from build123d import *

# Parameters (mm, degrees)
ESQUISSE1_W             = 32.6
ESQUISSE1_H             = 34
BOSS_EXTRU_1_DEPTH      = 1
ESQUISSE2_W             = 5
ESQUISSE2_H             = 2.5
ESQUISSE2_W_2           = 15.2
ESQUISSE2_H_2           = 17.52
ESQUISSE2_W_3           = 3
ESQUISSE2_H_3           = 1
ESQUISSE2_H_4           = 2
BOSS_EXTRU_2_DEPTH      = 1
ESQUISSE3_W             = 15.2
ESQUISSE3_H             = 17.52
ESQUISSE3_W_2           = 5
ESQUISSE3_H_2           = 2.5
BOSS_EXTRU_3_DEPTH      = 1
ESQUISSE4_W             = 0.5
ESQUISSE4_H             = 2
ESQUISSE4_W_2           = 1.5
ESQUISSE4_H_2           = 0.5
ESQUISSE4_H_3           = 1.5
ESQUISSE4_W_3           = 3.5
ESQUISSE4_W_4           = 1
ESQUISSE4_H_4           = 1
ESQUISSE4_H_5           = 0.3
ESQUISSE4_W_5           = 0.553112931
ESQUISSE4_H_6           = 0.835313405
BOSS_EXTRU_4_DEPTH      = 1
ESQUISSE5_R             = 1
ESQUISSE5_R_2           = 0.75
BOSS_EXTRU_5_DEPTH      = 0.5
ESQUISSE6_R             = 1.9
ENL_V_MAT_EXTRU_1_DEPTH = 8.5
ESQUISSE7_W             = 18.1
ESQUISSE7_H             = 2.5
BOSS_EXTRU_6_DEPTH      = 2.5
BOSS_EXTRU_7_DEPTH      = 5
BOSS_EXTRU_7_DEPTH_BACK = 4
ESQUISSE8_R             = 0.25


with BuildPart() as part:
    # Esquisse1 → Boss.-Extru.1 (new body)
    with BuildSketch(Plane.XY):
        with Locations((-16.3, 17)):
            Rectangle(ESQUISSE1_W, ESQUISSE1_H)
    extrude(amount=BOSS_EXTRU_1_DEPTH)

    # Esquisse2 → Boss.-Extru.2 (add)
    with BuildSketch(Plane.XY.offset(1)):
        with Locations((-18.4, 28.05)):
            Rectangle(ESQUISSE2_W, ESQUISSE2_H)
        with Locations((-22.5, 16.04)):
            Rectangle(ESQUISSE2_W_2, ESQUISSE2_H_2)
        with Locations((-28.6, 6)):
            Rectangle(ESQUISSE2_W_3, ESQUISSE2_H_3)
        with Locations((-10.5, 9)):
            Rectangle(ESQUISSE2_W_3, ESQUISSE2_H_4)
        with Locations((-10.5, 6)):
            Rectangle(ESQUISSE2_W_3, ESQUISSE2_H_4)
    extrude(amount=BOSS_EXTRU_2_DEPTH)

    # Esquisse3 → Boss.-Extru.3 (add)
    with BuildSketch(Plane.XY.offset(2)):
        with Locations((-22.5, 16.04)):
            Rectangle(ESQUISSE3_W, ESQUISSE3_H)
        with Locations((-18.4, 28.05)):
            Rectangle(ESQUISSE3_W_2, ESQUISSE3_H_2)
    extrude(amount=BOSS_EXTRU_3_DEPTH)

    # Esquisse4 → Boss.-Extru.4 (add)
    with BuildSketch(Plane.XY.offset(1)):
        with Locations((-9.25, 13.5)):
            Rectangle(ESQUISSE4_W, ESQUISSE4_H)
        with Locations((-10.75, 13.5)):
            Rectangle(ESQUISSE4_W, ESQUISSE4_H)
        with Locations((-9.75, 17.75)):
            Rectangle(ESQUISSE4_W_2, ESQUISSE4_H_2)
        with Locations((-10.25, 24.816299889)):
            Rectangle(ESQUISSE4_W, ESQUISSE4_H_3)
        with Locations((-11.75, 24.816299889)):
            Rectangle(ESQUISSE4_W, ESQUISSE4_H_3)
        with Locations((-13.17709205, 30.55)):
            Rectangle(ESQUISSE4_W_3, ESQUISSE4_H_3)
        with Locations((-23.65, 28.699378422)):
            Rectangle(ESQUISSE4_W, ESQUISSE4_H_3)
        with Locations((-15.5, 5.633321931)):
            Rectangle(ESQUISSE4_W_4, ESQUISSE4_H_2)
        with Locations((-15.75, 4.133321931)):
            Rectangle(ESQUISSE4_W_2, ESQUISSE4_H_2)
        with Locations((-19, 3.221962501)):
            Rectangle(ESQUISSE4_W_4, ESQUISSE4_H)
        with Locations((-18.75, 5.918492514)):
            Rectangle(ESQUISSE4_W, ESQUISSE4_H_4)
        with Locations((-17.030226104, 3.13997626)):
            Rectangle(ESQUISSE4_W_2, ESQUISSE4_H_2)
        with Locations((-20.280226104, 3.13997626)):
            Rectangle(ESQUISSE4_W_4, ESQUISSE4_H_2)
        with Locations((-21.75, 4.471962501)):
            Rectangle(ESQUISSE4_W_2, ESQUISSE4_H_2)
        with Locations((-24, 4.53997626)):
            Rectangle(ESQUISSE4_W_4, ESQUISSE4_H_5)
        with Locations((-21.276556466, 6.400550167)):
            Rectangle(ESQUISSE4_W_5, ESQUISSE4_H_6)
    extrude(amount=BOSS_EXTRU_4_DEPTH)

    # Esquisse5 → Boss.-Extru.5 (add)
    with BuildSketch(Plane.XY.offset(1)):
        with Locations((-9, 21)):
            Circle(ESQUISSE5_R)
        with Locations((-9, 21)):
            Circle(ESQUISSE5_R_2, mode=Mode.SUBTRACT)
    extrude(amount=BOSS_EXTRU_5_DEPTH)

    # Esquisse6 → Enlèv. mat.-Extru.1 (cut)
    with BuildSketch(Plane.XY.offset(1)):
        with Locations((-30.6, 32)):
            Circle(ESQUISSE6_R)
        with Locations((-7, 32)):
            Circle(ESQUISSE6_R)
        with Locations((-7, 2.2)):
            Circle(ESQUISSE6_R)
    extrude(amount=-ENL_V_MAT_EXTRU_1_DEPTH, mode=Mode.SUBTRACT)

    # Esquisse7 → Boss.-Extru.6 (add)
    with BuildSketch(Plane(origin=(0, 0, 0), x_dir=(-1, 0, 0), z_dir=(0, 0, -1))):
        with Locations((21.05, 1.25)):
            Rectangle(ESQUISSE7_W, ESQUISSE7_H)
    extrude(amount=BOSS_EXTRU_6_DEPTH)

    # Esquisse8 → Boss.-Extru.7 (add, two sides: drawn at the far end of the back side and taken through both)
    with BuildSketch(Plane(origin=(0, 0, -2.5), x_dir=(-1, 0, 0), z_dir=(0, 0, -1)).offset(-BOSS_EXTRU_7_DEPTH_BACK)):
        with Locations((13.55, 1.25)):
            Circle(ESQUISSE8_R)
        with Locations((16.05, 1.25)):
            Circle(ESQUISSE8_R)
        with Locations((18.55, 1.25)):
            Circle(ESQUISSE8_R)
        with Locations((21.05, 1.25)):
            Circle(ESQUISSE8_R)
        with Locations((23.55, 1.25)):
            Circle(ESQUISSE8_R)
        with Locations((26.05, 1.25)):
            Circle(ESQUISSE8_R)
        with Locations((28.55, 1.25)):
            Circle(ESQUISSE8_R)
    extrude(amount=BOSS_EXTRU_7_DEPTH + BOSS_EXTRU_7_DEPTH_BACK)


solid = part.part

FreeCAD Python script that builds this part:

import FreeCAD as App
import Part
import Sketcher
from FreeCAD import Vector


def add_polygon(sketch, points):
    """Adds a closed chain of lines whose ends are joined by coincident constraints."""
    first, n = sketch.GeometryCount, len(points)
    for a, b in zip(points, points[1:] + points[:1]):
        sketch.addGeometry(Part.LineSegment(App.Vector(*a, 0), App.Vector(*b, 0)), False)
    for i in range(n):
        sketch.addConstraint(Sketcher.Constraint("Coincident", first + i, 2, first + (i + 1) % n, 1))

doc = App.newDocument("Part")
params = doc.addObject("Spreadsheet::Sheet", "Params")
for row, (alias, value) in enumerate([
    ("sketch1_height", "34 mm"),
    ("sketch1_width", "32.6 mm"),
    ("pad1_length", "1 mm"),
    ("sketch2_width", "5 mm"),
    ("sketch2_width2", "3 mm"),
    ("sketch2_height", "1 mm"),
    ("sketch2_height2", "2 mm"),
    ("sketch2_width3", "15.2 mm"),
    ("pad2_length", "1 mm"),
    ("sketch3_width", "5 mm"),
    ("sketch3_width2", "15.2 mm"),
    ("sketch3_height", "2.5 mm"),
    ("sketch3_height2", "17.52 mm"),
    ("pad3_length", "1 mm"),
    ("sketch4_width", "1 mm"),
    ("sketch4_height", "2 mm"),
    ("sketch4_width2", "0.5 mm"),
    ("sketch4_width3", "1.5 mm"),
    ("sketch4_width4", "3.5 mm"),
    ("pad4_length", "1 mm"),
    ("sketch5_diameter", "2 mm"),
    ("sketch5_diameter2", "1.5 mm"),
    ("pad5_length", "0.5 mm"),
    ("sketch6_diameter", "3.8 mm"),
    ("pocket1_length", "8.5 mm"),
    ("sketch7_width", "18.1 mm"),
    ("sketch7_height", "2.5 mm"),
    ("pad6_length", "2.5 mm"),
    ("sketch8_diameter", "0.5 mm"),
    ("pad7_length", "5 mm"),
    ("pad7_length2", "4 mm"),
], start=1):
    params.set(f"A{row}", alias)
    params.set(f"B{row}", "=" + value)
    params.setAlias(f"B{row}", alias)

body = doc.addObject("PartDesign::Body", "Body")

# Sketch on XY plane
sketch1 = body.newObject("Sketcher::SketchObject", "Sketch")
sketch1.AttachmentSupport = (doc.getObject("XY_Plane"), [""])
sketch1.MapMode = "FlatFace"
add_polygon(sketch1, [(-33, 34), (-33, 0), (0, 0), (0, 34)])  # lines 0-3
sketch1.addConstraint([
    Sketcher.Constraint("Vertical", 0),
    Sketcher.Constraint("Horizontal", 1),
    Sketcher.Constraint("Vertical", 2),
    Sketcher.Constraint("Horizontal", 3),
    Sketcher.Constraint("Coincident", 1, 2, -1, 1),
    Sketcher.Constraint("DistanceY", 0, 2, 0, 1, 34.0),
    Sketcher.Constraint("DistanceX", 1, 1, 1, 2, 32.6),
])
sketch1.setExpression("Constraints[9]", "Params.sketch1_height")
sketch1.setExpression("Constraints[10]", "Params.sketch1_width")
pad1 = body.newObject("PartDesign::Pad", "Pad")
pad1.Profile = sketch1
pad1.setExpression("Length", "Params.pad1_length")

# Sketch on XY plane
sketch2 = body.newObject("Sketcher::SketchObject", "Sketch001")
sketch2.AttachmentSupport = (doc.getObject("XY_Plane"), [""])
sketch2.MapMode = "FlatFace"
sketch2.AttachmentOffset = App.Placement(Vector(0, 0, 1), App.Rotation())
add_polygon(sketch2, [(-20.9, 29.3), (-20.9, 26.8), (-15.9, 26.8), (-15.9, 29.3)])  # lines 0-3
add_polygon(sketch2, [(-30.1, 24.8), (-30.1, 7.3), (-14.9, 7.3), (-14.9, 24.8)])  # lines 4-7
add_polygon(sketch2, [(-30.1, 6.5), (-30.1, 5.5), (-27.1, 5.5), (-27.1, 6.5)])  # lines 8-11
add_polygon(sketch2, [(-12, 10), (-12, 8), (-9, 8), (-9, 10)])  # lines 12-15
add_polygon(sketch2, [(-12, 7), (-12, 5), (-9, 5), (-9, 7)])  # lines 16-19
sketch2.addConstraint([
    Sketcher.Constraint("Vertical", 0),
    Sketcher.Constraint("Horizontal", 1),
    Sketcher.Constraint("Vertical", 2),
    Sketcher.Constraint("Horizontal", 3),
    Sketcher.Constraint("Vertical", 4),
    Sketcher.Constraint("Horizontal", 5),
    Sketcher.Constraint("Vertical", 6),
    Sketcher.Constraint("Horizontal", 7),
    Sketcher.Constraint("Vertical", 8),
    Sketcher.Constraint("Horizontal", 9),
    Sketcher.Constraint("Vertical", 10),
    Sketcher.Constraint("Horizontal", 11),
    Sketcher.Constraint("Vertical", 12),
    Sketcher.Constraint("Horizontal", 13),
    Sketcher.Constraint("Vertical", 14),
    Sketcher.Constraint("Horizontal", 15),
    Sketcher.Constraint("Vertical", 16),
    Sketcher.Constraint("Horizontal", 17),
    Sketcher.Constraint("Vertical", 18),
    Sketcher.Constraint("Horizontal", 19),
    Sketcher.Constraint("Vertical", 7, 2, 8, 2),
    Sketcher.Constraint("Vertical", 15, 2, 16, 2),
    Sketcher.Constraint("Vertical", 14, 2, 17, 2),
    Sketcher.Constraint("Equal", 11, 13),
    Sketcher.Constraint("Equal", 14, 16),
    Sketcher.Constraint("DistanceX", 1, 1, 1, 2, 5.0),
    Sketcher.Constraint("DistanceX", 9, 1, 9, 2, 3.0),
    Sketcher.Constraint("DistanceY", 8, 2, 8, 1, 1.0),
    Sketcher.Constraint("DistanceY", 12, 2, 12, 1, 2.0),
    Sketcher.Constraint("DistanceX", 5, 1, 5, 2, 15.2),
    Sketcher.Constraint("DistanceY", 0, 2, 0, 1, 2.5),
    Sketcher.Constraint("DistanceX", 12, 2, -1, 1, 12.0),
    Sketcher.Constraint("DistanceY", -1, 1, 12, 2, 8.0),
    Sketcher.Constraint("DistanceY", -1, 1, 16, 2, 5.0),
    Sketcher.Constraint("DistanceX", 1, 2, 5, 2, 1.0),
    Sketcher.Constraint("DistanceY", 6, 2, 1, 2, 2.0),
    Sketcher.Constraint("DistanceY", 4, 2, 4, 1, 17.52),
    Sketcher.Constraint("DistanceX", 0, 2, -1, 1, 20.9),
    Sketcher.Constraint("DistanceY", -1, 1, 0, 2, 26.8),
    Sketcher.Constraint("DistanceY", -1, 1, 8, 2, 5.5),
])
sketch2.setExpression("Constraints[45]", "Params.sketch2_width")
sketch2.setExpression("Constraints[46]", "Params.sketch2_width2")
sketch2.setExpression("Constraints[47]", "Params.sketch2_height")
sketch2.setExpression("Constraints[48]", "Params.sketch2_height2")
sketch2.setExpression("Constraints[49]", "Params.sketch2_width3")
pad2 = body.newObject("PartDesign::Pad", "Pad001")
pad2.Profile = sketch2
pad2.setExpression("Length", "Params.pad2_length")

# Sketch on XY plane
sketch3 = body.newObject("Sketcher::SketchObject", "Sketch002")
sketch3.AttachmentSupport = (doc.getObject("XY_Plane"), [""])
sketch3.MapMode = "FlatFace"
sketch3.AttachmentOffset = App.Placement(Vector(0, 0, 2), App.Rotation())
add_polygon(sketch3, [(-30.1, 24.8), (-30.1, 7.3), (-14.9, 7.3), (-14.9, 24.8)])  # lines 0-3
add_polygon(sketch3, [(-20.9, 29.3), (-20.9, 26.8), (-15.9, 26.8), (-15.9, 29.3)])  # lines 4-7
sketch3.addConstraint([
    Sketcher.Constraint("Vertical", 0),
    Sketcher.Constraint("Horizontal", 1),
    Sketcher.Constraint("Vertical", 2),
    Sketcher.Constraint("Horizontal", 3),
    Sketcher.Constraint("Vertical", 4),
    Sketcher.Constraint("Horizontal", 5),
    Sketcher.Constraint("Vertical", 6),
    Sketcher.Constraint("Horizontal", 7),
    Sketcher.Constraint("DistanceX", 5, 1, 5, 2, 5.0),
    Sketcher.Constraint("DistanceX", 1, 1, 1, 2, 15.2),
    Sketcher.Constraint("DistanceY", 4, 2, 4, 1, 2.5),
    Sketcher.Constraint("DistanceX", 4, 2, 2, 2, 6.0),
    Sketcher.Constraint("DistanceY", 2, 2, 4, 2, 2.0),
    Sketcher.Constraint("DistanceY", 0, 2, 0, 1, 17.52),
    Sketcher.Constraint("DistanceX", 0, 2, -1, 1, 30.1),
    Sketcher.Constraint("DistanceY", -1, 1, 2, 2, 24.8),
])
sketch3.setExpression("Constraints[16]", "Params.sketch3_width")
sketch3.setExpression("Constraints[17]", "Params.sketch3_width2")
sketch3.setExpression("Constraints[18]", "Params.sketch3_height")
sketch3.setExpression("Constraints[21]", "Params.sketch3_height2")
pad3 = body.newObject("PartDesign::Pad", "Pad002")
pad3.Profile = sketch3
pad3.setExpression("Length", "Params.pad3_length")

# Sketch on XY plane
sketch4 = body.newObject("Sketcher::SketchObject", "Sketch003")
sketch4.AttachmentSupport = (doc.getObject("XY_Plane"), [""])
sketch4.MapMode = "FlatFace"
sketch4.AttachmentOffset = App.Placement(Vector(0, 0, 1), App.Rotation())
add_polygon(sketch4, [(-9.5, 14.5), (-9.5, 12.5), (-9, 12.5), (-9, 14.5)])  # lines 0-3
add_polygon(sketch4, [(-11, 14.5), (-11, 12.5), (-10.5, 12.5), (-10.5, 14.5)])  # lines 4-7
add_polygon(sketch4, [(-10.5, 18), (-10.5, 17.5), (-9, 17.5), (-9, 18)])  # lines 8-11
add_polygon(sketch4, [(-10.5, 25.57), (-10.5, 24.07), (-10, 24.07), (-10, 25.57)])  # lines 12-15
add_polygon(sketch4, [(-12, 25.57), (-12, 24.07), (-11.5, 24.07), (-11.5, 25.57)])  # lines 16-19
add_polygon(sketch4, [(-14.93, 31.3), (-14.93, 29.8), (-11.43, 29.8), (-11.43, 31.3)])  # lines 20-23
add_polygon(sketch4, [(-23.9, 29.45), (-23.9, 27.95), (-23.4, 27.95), (-23.4, 29.45)])  # lines 24-27
add_polygon(sketch4, [(-16, 5.88), (-16, 5.38), (-15, 5.38), (-15, 5.88)])  # lines 28-31
add_polygon(sketch4, [(-16.5, 4.38), (-16.5, 3.88), (-15, 3.88), (-15, 4.38)])  # lines 32-35
add_polygon(sketch4, [(-19.5, 4.22), (-19.5, 2.22), (-18.5, 2.22), (-18.5, 4.22)])  # lines 36-39
add_polygon(sketch4, [(-19, 6.42), (-19, 5.42), (-18.5, 5.42), (-18.5, 6.42)])  # lines 40-43
add_polygon(sketch4, [(-17.78, 3.39), (-17.78, 2.89), (-16.28, 2.89), (-16.28, 3.39)])  # lines 44-47
add_polygon(sketch4, [(-20.78, 3.39), (-20.78, 2.89), (-19.78, 2.89), (-19.78, 3.39)])  # lines 48-51
add_polygon(sketch4, [(-22.5, 4.72), (-22.5, 4.22), (-21, 4.22), (-21, 4.72)])  # lines 52-55
add_polygon(sketch4, [(-24.5, 4.69), (-24.5, 4.39), (-23.5, 4.39), (-23.5, 4.69)])  # lines 56-59
add_polygon(sketch4, [(-21.55, 6.82), (-21.55, 5.98), (-21, 5.98), (-21, 6.82)])  # lines 60-63
sketch4.addConstraint([
    Sketcher.Constraint("Vertical", 0),
    Sketcher.Constraint("Horizontal", 1),
    Sketcher.Constraint("Vertical", 2),
    Sketcher.Constraint("Horizontal", 3),
    Sketcher.Constraint("Vertical", 4),
    Sketcher.Constraint("Horizontal", 5),
    Sketcher.Constraint("Vertical", 6),
    Sketcher.Constraint("Horizontal", 7),
    Sketcher.Constraint("Vertical", 8),
    Sketcher.Constraint("Horizontal", 9),
    Sketcher.Constraint("Vertical", 10),
    Sketcher.Constraint("Horizontal", 11),
    Sketcher.Constraint("Vertical", 12),
    Sketcher.Constraint("Horizontal", 13),
    Sketcher.Constraint("Vertical", 14),
    Sketcher.Constraint("Horizontal", 15),
    Sketcher.Constraint("Vertical", 16),
    Sketcher.Constraint("Horizontal", 17),
    Sketcher.Constraint("Vertical", 18),
    Sketcher.Constraint("Horizontal", 19),
    Sketcher.Constraint("Vertical", 20),
    Sketcher.Constraint("Horizontal", 21),
    Sketcher.Constraint("Vertical", 22),
    Sketcher.Constraint("Horizontal", 23),
    Sketcher.Constraint("Vertical", 24),
    Sketcher.Constraint("Horizontal", 25),
    Sketcher.Constraint("Vertical", 26),
    Sketcher.Constraint("Horizontal", 27),
    Sketcher.Constraint("Vertical", 28),
    Sketcher.Constraint("Horizontal", 29),
    Sketcher.Constraint("Vertical", 30),
    Sketcher.Constraint("Horizontal", 31),
    Sketcher.Constraint("Vertical", 32),
    Sketcher.Constraint("Horizontal", 33),
    Sketcher.Constraint("Vertical", 34),
    Sketcher.Constraint("Horizontal", 35),
    Sketcher.Constraint("Vertical", 36),
    Sketcher.Constraint("Horizontal", 37),
    Sketcher.Constraint("Vertical", 38),
    Sketcher.Constraint("Horizontal", 39),
    Sketcher.Constraint("Vertical", 40),
    Sketcher.Constraint("Horizontal", 41),
    Sketcher.Constraint("Vertical", 42),
    Sketcher.Constraint("Horizontal", 43),
    Sketcher.Constraint("Vertical", 44),
    Sketcher.Constraint("Horizontal", 45),
    Sketcher.Constraint("Vertical", 46),
    Sketcher.Constraint("Horizontal", 47),
    Sketcher.Constraint("Vertical", 48),
    Sketcher.Constraint("Horizontal", 49),
    Sketcher.Constraint("Vertical", 50),
    Sketcher.Constraint("Horizontal", 51),
    Sketcher.Constraint("Vertical", 52),
    Sketcher.Constraint("Horizontal", 53),
    Sketcher.Constraint("Vertical", 54),
    Sketcher.Constraint("Horizontal", 55),
    Sketcher.Constraint("Vertical", 56),
    Sketcher.Constraint("Horizontal", 57),
    Sketcher.Constraint("Vertical", 58),
    Sketcher.Constraint("Horizontal", 59),
    Sketcher.Constraint("Vertical", 60),
    Sketcher.Constraint("Horizontal", 61),
    Sketcher.Constraint("Vertical", 62),
    Sketcher.Constraint("Horizontal", 63),
    Sketcher.Constraint("Horizontal", 1, 2, 4, 2),
    Sketcher.Constraint("Horizontal", 3, 2, 6, 2),
    Sketcher.Constraint("Horizontal", 13, 2, 16, 2),
    Sketcher.Constraint("Horizontal", 15, 2, 18, 2),
    Sketcher.Constraint("Horizontal", 45, 2, 48, 2),
    Sketcher.Constraint("Horizontal", 47, 2, 50, 2),
    Sketcher.Constraint("Horizontal", 39, 2, 52, 2),
    Sketcher.Constraint("Vertical", 6, 2, 8, 2),
    Sketcher.Constraint("Vertical", 2, 2, 9, 2),
    Sketcher.Constraint("Vertical", 11, 2, 12, 2),
    Sketcher.Constraint("Vertical", 30, 2, 33, 2),
    Sketcher.Constraint("Vertical", 38, 2, 41, 2),
    Sketcher.Constraint("Vertical", 54, 2, 61, 2),
    Sketcher.Constraint("Equal", 3, 5),
    Sketcher.Constraint("Equal", 7, 13),
    Sketcher.Constraint("Equal", 15, 17),
    Sketcher.Constraint("Equal", 19, 25),
    Sketcher.Constraint("Equal", 11, 33),
    Sketcher.Constraint("Equal", 31, 37),
    Sketcher.Constraint("Equal", 27, 41),
    Sketcher.Constraint("Equal", 35, 45),
    Sketcher.Constraint("Equal", 39, 49),
    Sketcher.Constraint("Equal", 47, 53),
    Sketcher.Constraint("Equal", 51, 57),
    Sketcher.Constraint("Equal", 43, 8),
    Sketcher.Constraint("Equal", 55, 12),
    Sketcher.Constraint("Equal", 18, 20),
    Sketcher.Constraint("Equal", 22, 24),
    Sketcher.Constraint("Equal", 10, 28),
    Sketcher.Constraint("Equal", 30, 32),
    Sketcher.Constraint("Equal", 6, 36),
    Sketcher.Constraint("Equal", 59, 40),
    Sketcher.Constraint("Equal", 34, 44),
    Sketcher.Constraint("Equal", 50, 52),
    Sketcher.Constraint("DistanceX", 29, 1, 29, 2, 1.0),
    Sketcher.Constraint("DistanceY", 0, 2, 0, 1, 2.0),
    Sketcher.Constraint("DistanceX", 1, 1, 1, 2, 0.5),
    Sketcher.Constraint("DistanceX", 9, 1, 9, 2, 1.5),
    Sketcher.Constraint("DistanceX", 21, 1, 21, 2, 3.5),
    Sketcher.Constraint("DistanceY", 56, 2, 56, 1, 0.3),
    Sketcher.Constraint("DistanceX", 1, 2, -1, 1, 9.0),
    Sketcher.Constraint("DistanceY", -1, 1, 10, 2, 18.0),
    Sketcher.Constraint("DistanceX", 16, 2, -1, 1, 12.0),
    Sketcher.Constraint("DistanceX", 28, 2, -1, 1, 16.0),
    Sketcher.Constraint("DistanceX", 40, 2, -1, 1, 19.0),
    Sketcher.Constraint("DistanceX", 53, 2, -1, 1, 21.0),
    Sketcher.Constraint("DistanceY", -1, 1, 0, 2, 12.5),
    Sketcher.Constraint("DistanceY", -1, 1, 20, 2, 29.8),
    Sketcher.Constraint("DistanceX", 24, 2, -1, 1, 23.9),
    Sketcher.Constraint("DistanceX", 56, 2, -1, 1, 24.5),
    Sketcher.Constraint("DistanceY", -1, 1, 12, 2, 24.0663),
    Sketcher.Constraint("DistanceX", 61, 1, 61, 2, 0.553113),
    Sketcher.Constraint("DistanceY", 60, 2, 60, 1, 0.835313),
    Sketcher.Constraint("DistanceY", -1, 1, 24, 2, 27.949378),
    Sketcher.Constraint("DistanceY", -1, 1, 28, 2, 5.383322),
    Sketcher.Constraint("DistanceY", -1, 1, 32, 2, 3.883322),
    Sketcher.Constraint("DistanceX", 20, 2, -1, 1, 14.927092),
    Sketcher.Constraint("DistanceY", -1, 1, 36, 2, 2.221963),
    Sketcher.Constraint("DistanceY", -1, 1, 40, 2, 5.418493),
    Sketcher.Constraint("DistanceX", 44, 2, -1, 1, 17.780226),
    Sketcher.Constraint("DistanceY", -1, 1, 44, 2, 2.889976),
    Sketcher.Constraint("DistanceX", 48, 2, -1, 1, 20.780226),
    Sketcher.Constraint("DistanceY", -1, 1, 56, 2, 4.389976),
    Sketcher.Constraint("DistanceY", -1, 1, 60, 2, 5.982893),
])
sketch4.setExpression("Constraints[162]", "Params.sketch4_width")
sketch4.setExpression("Constraints[163]", "Params.sketch4_height")
sketch4.setExpression("Constraints[164]", "Params.sketch4_width2")
sketch4.setExpression("Constraints[165]", "Params.sketch4_width3")
sketch4.setExpression("Constraints[166]", "Params.sketch4_width4")
pad4 = body.newObject("PartDesign::Pad", "Pad003")
pad4.Profile = sketch4
pad4.setExpression("Length", "Params.pad4_length")

# Sketch on XY plane
sketch5 = body.newObject("Sketcher::SketchObject", "Sketch004")
sketch5.AttachmentSupport = (doc.getObject("XY_Plane"), [""])
sketch5.MapMode = "FlatFace"
sketch5.AttachmentOffset = App.Placement(Vector(0, 0, 1), App.Rotation())
sketch5.addGeometry([
    Part.Circle(Vector(-9, 21, 0), Vector(0, 0, 1), 1),
    Part.Circle(Vector(-9, 21, 0), Vector(0, 0, 1), 0.8),
], False)
sketch5.addConstraint([
    Sketcher.Constraint("Coincident", 1, 3, 0, 3),
    Sketcher.Constraint("Diameter", 0, 2.0),
    Sketcher.Constraint("Diameter", 1, 1.5),
    Sketcher.Constraint("DistanceX", 0, 3, -1, 1, 9.0),
    Sketcher.Constraint("DistanceY", -1, 1, 0, 3, 21.0),
])
sketch5.setExpression("Constraints[1]", "Params.sketch5_diameter")
sketch5.setExpression("Constraints[2]", "Params.sketch5_diameter2")
pad5 = body.newObject("PartDesign::Pad", "Pad004")
pad5.Profile = sketch5
pad5.setExpression("Length", "Params.pad5_length")

# Sketch on XY plane
sketch6 = body.newObject("Sketcher::SketchObject", "Sketch005")
sketch6.AttachmentSupport = (doc.getObject("XY_Plane"), [""])
sketch6.MapMode = "FlatFace"
sketch6.AttachmentOffset = App.Placement(Vector(0, 0, 1), App.Rotation())
sketch6.addGeometry([
    Part.Circle(Vector(-30.6, 32, 0), Vector(0, 0, 1), 1.9),
    Part.Circle(Vector(-7, 32, 0), Vector(0, 0, 1), 1.9),
    Part.Circle(Vector(-7, 2.2, 0), Vector(0, 0, 1), 1.9),
], False)
sketch6.addConstraint([
    Sketcher.Constraint("Equal", 0, 1),
    Sketcher.Constraint("Equal", 1, 2),
    Sketcher.Constraint("Horizontal", 0, 3, 1, 3),
    Sketcher.Constraint("Vertical", 1, 3, 2, 3),
    Sketcher.Constraint("Diameter", 0, 3.8),
    Sketcher.Constraint("DistanceY", -1, 1, 0, 3, 32.0),
    Sketcher.Constraint("DistanceX", 1, 3, -1, 1, 7.0),
    Sketcher.Constraint("DistanceX", 0, 3, -1, 1, 30.6),
    Sketcher.Constraint("DistanceY", -1, 1, 2, 3, 2.2),
])
sketch6.setExpression("Constraints[4]", "Params.sketch6_diameter")
pocket1 = body.newObject("PartDesign::Pocket", "Pocket")
pocket1.Profile = sketch6
pocket1.setExpression("Length", "Params.pocket1_length")

# Sketch on XY plane
sketch7 = body.newObject("Sketcher::SketchObject", "Sketch006")
sketch7.AttachmentSupport = (doc.getObject("XY_Plane"), [""])
sketch7.MapMode = "FlatFace"
add_polygon(sketch7, [(-12, 2.5), (-12, 0), (-30.1, 0), (-30.1, 2.5)])  # lines 0-3
sketch7.addConstraint([
    Sketcher.Constraint("Vertical", 0),
    Sketcher.Constraint("Horizontal", 1),
    Sketcher.Constraint("Vertical", 2),
    Sketcher.Constraint("Horizontal", 3),
    Sketcher.Constraint("PointOnObject", 0, 2, -1),
    Sketcher.Constraint("DistanceX", 1, 2, 1, 1, 18.1),
    Sketcher.Constraint("DistanceY", 0, 2, 0, 1, 2.5),
    Sketcher.Constraint("DistanceX", 0, 2, -1, 1, 12.0),
])
sketch7.setExpression("Constraints[9]", "Params.sketch7_width")
sketch7.setExpression("Constraints[10]", "Params.sketch7_height")
pad6 = body.newObject("PartDesign::Pad", "Pad005")
pad6.Profile = sketch7
pad6.setExpression("Length", "Params.pad6_length")
pad6.Reversed = True

# Sketch on XY plane
sketch8 = body.newObject("Sketcher::SketchObject", "Sketch007")
sketch8.AttachmentSupport = (doc.getObject("XY_Plane"), [""])
sketch8.MapMode = "FlatFace"
sketch8.AttachmentOffset = App.Placement(Vector(0, 0, -2.5), App.Rotation())
sketch8.addGeometry([
    Part.Circle(Vector(-13.55, 1.25, 0), Vector(0, 0, 1), 0.25),  # 0
    Part.Circle(Vector(-16.05, 1.25, 0), Vector(0, 0, 1), 0.25),  # 1
    Part.Circle(Vector(-18.55, 1.25, 0), Vector(0, 0, 1), 0.25),  # 2
    Part.Circle(Vector(-21.05, 1.25, 0), Vector(0, 0, 1), 0.25),  # 3
    Part.Circle(Vector(-23.55, 1.25, 0), Vector(0, 0, 1), 0.25),  # 4
    Part.Circle(Vector(-26.05, 1.25, 0), Vector(0, 0, 1), 0.25),  # 5
    Part.Circle(Vector(-28.55, 1.25, 0), Vector(0, 0, 1), 0.25),  # 6
], False)
sketch8.addConstraint([
    Sketcher.Constraint("Equal", 0, 1),
    Sketcher.Constraint("Equal", 1, 2),
    Sketcher.Constraint("Equal", 2, 3),
    Sketcher.Constraint("Equal", 3, 4),
    Sketcher.Constraint("Equal", 4, 5),
    Sketcher.Constraint("Equal", 5, 6),
    Sketcher.Constraint("Horizontal", 0, 3, 1, 3),
    Sketcher.Constraint("Horizontal", 1, 3, 2, 3),
    Sketcher.Constraint("Horizontal", 2, 3, 3, 3),
    Sketcher.Constraint("Horizontal", 3, 3, 4, 3),
    Sketcher.Constraint("Horizontal", 4, 3, 5, 3),
    Sketcher.Constraint("Horizontal", 5, 3, 6, 3),
    Sketcher.Constraint("Diameter", 0, 0.5),
    Sketcher.Constraint("DistanceX", 2, 3, 0, 3, 5.0),
    Sketcher.Constraint("DistanceX", 3, 3, 1, 3, 5.0),
    Sketcher.Constraint("DistanceX", 4, 3, 2, 3, 5.0),
    Sketcher.Constraint("DistanceX", 5, 3, 3, 3, 5.0),
    Sketcher.Constraint("DistanceX", 6, 3, 4, 3, 5.0),
    Sketcher.Constraint("DistanceX", 1, 3, 0, 3, 2.5),
    Sketcher.Constraint("DistanceX", 0, 3, -1, 1, 13.55),
    Sketcher.Constraint("DistanceY", -1, 1, 0, 3, 1.25),
])
sketch8.setExpression("Constraints[12]", "Params.sketch8_diameter")
pad7 = body.newObject("PartDesign::Pad", "Pad006")
pad7.Profile = sketch8
pad7.Type = "TwoLengths"
pad7.setExpression("Length", "Params.pad7_length")
pad7.setExpression("Length2", "Params.pad7_length2")
pad7.Reversed = True

doc.recompute()
